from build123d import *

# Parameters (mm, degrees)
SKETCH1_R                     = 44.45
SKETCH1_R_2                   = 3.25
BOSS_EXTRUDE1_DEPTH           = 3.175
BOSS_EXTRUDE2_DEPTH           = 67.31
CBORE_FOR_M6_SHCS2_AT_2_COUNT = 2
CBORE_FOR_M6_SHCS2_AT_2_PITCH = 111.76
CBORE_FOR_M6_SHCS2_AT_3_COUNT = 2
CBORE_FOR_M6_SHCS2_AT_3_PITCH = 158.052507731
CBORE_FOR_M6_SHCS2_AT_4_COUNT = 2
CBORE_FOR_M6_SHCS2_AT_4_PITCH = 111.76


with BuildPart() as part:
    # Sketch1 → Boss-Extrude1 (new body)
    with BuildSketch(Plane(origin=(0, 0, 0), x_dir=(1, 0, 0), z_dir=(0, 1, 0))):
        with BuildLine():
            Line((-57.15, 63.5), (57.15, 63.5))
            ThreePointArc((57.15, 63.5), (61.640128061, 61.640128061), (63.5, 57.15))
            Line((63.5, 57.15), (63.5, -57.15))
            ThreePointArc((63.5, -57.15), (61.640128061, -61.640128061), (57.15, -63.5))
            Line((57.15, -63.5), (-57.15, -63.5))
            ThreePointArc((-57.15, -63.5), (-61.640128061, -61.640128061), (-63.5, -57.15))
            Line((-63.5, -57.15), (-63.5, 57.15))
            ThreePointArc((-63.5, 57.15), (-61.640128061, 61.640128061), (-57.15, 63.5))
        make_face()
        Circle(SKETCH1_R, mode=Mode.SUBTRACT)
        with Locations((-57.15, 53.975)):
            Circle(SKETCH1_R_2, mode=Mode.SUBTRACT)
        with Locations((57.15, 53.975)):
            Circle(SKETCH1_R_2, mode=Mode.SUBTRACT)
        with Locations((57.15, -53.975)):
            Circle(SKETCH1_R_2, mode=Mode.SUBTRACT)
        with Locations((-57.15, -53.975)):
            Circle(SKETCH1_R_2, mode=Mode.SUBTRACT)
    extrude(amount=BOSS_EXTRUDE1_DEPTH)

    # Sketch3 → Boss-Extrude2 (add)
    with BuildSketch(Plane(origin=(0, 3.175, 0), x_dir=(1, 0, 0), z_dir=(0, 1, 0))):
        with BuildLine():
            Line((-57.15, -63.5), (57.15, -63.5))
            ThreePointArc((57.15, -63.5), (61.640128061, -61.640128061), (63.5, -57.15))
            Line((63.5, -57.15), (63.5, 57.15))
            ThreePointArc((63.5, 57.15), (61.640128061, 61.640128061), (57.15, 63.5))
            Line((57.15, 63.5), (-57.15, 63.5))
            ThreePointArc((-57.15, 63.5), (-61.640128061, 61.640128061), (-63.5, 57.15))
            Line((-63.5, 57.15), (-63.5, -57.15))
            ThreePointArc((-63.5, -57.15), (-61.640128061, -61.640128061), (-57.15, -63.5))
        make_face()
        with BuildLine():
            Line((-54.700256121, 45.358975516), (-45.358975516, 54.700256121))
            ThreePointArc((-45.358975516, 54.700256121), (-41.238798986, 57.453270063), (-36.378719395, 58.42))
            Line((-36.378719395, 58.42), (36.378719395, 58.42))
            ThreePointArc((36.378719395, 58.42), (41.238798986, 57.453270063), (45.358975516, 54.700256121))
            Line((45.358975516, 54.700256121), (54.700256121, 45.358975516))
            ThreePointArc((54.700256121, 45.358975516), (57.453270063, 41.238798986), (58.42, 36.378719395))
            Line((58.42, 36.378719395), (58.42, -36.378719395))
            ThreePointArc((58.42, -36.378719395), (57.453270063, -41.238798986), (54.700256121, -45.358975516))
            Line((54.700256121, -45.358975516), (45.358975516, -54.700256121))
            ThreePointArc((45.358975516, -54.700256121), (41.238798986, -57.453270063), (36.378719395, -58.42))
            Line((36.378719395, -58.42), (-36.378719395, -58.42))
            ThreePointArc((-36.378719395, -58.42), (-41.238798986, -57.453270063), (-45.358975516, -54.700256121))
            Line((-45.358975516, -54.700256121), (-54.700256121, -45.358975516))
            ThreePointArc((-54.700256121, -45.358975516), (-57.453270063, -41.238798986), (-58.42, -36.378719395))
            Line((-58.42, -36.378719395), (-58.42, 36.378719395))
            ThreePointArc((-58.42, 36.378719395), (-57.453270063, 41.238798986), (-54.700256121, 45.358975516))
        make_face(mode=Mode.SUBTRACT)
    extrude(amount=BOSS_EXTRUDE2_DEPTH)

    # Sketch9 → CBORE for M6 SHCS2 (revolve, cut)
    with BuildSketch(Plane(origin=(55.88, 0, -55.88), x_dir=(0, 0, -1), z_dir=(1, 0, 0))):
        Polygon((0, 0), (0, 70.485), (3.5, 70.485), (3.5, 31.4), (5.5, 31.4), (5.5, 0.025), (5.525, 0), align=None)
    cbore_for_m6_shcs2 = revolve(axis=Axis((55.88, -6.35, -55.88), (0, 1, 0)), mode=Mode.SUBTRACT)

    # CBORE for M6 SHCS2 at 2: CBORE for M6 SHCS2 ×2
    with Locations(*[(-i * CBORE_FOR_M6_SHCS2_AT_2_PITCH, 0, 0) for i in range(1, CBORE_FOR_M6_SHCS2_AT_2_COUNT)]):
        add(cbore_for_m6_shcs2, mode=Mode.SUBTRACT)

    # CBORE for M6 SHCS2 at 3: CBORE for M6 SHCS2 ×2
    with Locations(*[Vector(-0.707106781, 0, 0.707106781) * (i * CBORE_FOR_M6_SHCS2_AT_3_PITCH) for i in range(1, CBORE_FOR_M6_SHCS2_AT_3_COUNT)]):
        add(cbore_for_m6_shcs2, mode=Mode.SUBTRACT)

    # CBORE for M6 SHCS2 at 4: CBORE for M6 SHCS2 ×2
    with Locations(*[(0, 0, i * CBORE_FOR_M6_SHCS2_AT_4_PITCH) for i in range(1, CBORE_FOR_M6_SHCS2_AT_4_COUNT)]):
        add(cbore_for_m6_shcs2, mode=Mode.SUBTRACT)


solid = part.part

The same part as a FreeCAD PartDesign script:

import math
import FreeCAD as App
import Part
import Sketcher

V = App.Vector
Q = App.Units.Quantity

doc = App.newDocument("Part")
body = doc.addObject("PartDesign::Body", "Body")

# Sketch on XZ plane
sketch1 = body.newObject("Sketcher::SketchObject", "Sketch")
sketch1.AttachmentSupport = (doc.getObject("XZ_Plane"), [""])
sketch1.MapMode = "FlatFace"
sketch1.addGeometry([
    Part.LineSegment(V(57.15, -63.5, 0), V(-57.15, -63.5, 0)),  # 0
    Part.ArcOfCircle(Part.Circle(V(-57.15, -57.15, 0), V(0, 0, 1), 6.35), math.radians(180), math.radians(270)),  # 1
    Part.LineSegment(V(-63.5, -57.15, 0), V(-63.5, 57.15, 0)),  # 2
    Part.ArcOfCircle(Part.Circle(V(-57.15, 57.15, 0), V(0, 0, 1), 6.35), math.radians(90), math.radians(180)),  # 3
    Part.LineSegment(V(-57.15, 63.5, 0), V(57.15, 63.5, 0)),  # 4
    Part.ArcOfCircle(Part.Circle(V(57.15, 57.15, 0), V(0, 0, 1), 6.35), math.radians(0), math.radians(90)),  # 5
    Part.LineSegment(V(63.5, 57.15, 0), V(63.5, -57.15, 0)),  # 6
    Part.ArcOfCircle(Part.Circle(V(57.15, -57.15, 0), V(0, 0, 1), 6.35), math.radians(-90), math.radians(0)),  # 7
    Part.Circle(V(57.15, 53.975, 0), V(0, 0, 1), 3.25),  # 8
    Part.Circle(V(-57.15, 53.975, 0), V(0, 0, 1), 3.25),  # 9
    Part.Circle(V(57.15, -53.975, 0), V(0, 0, 1), 3.25),  # 10
    Part.Circle(V(0, 0, 0), V(0, 0, 1), 44.45),  # 11
    Part.Circle(V(-57.15, -53.975, 0), V(0, 0, 1), 3.25),  # 12
], False)
sketch1.addConstraint([
    Sketcher.Constraint("Tangent", 0, 2, 1, 2),
    Sketcher.Constraint("Tangent", 1, 1, 2, 1),
    Sketcher.Constraint("Tangent", 2, 2, 3, 2),
    Sketcher.Constraint("Tangent", 3, 1, 4, 1),
    Sketcher.Constraint("Tangent", 4, 2, 5, 2),
    Sketcher.Constraint("Tangent", 5, 1, 6, 1),
    Sketcher.Constraint("Tangent", 6, 2, 7, 2),
    Sketcher.Constraint("Tangent", 7, 1, 0, 1),
    Sketcher.Constraint("Horizontal", 0),
    Sketcher.Constraint("Vertical", 2),
    Sketcher.Constraint("Horizontal", 4),
    Sketcher.Constraint("Vertical", 6),
    Sketcher.Constraint("Coincident", 11, 3, -1, 1),
    Sketcher.Constraint("Equal", 1, 3),
    Sketcher.Constraint("Equal", 3, 5),
    Sketcher.Constraint("Equal", 5, 7),
    Sketcher.Constraint("Equal", 8, 9),
    Sketcher.Constraint("Equal", 9, 10),
    Sketcher.Constraint("Equal", 10, 12),
    Sketcher.Constraint("Symmetric", 1, 3, 5, 3, -1, 1),
    Sketcher.Constraint("Symmetric", 9, 3, 10, 3, -1, 1),
    Sketcher.Constraint("Symmetric", 8, 3, 12, 3, -1, 1),
    Sketcher.Constraint("Symmetric", 8, 3, 9, 3, -2),
    Sketcher.Constraint("Vertical", 7, 3, 8, 3),
    Sketcher.Constraint("Equal", 4, 2),
    Sketcher.Constraint("Diameter", 11, Q("3.5 in")),
    Sketcher.Constraint("Radius", 1, Q("0.25 in")),
    Sketcher.Constraint("DistanceX", 0, 2, 0, 1, Q("4.5 in")),
    Sketcher.Constraint("Diameter", 8, Q("6.5 mm")),
    Sketcher.Constraint("DistanceY", 10, 3, 8, 3, Q("4.25 in")),
])
pad1 = body.newObject("PartDesign::Pad", "Pad")
pad1.Profile = sketch1
pad1.Length = Q("0.125 in")
pad1.Reversed = True

# Sketch on XZ plane
sketch2 = body.newObject("Sketcher::SketchObject", "Sketch001")
sketch2.AttachmentSupport = (doc.getObject("XZ_Plane"), [""])
sketch2.MapMode = "FlatFace"
sketch2.AttachmentOffset = App.Placement(V(0, 0, -0.125 * 25.4), App.Rotation())
sketch2.addGeometry([
    Part.LineSegment(V(-57.15, 63.5, 0), V(57.15, 63.5, 0)),  # 0
    Part.ArcOfCircle(Part.Circle(V(57.15, 57.15, 0), V(0, 0, 1), 6.35), math.radians(0), math.radians(90)),  # 1
    Part.LineSegment(V(63.5, 57.15, 0), V(63.5, -57.15, 0)),  # 2
    Part.ArcOfCircle(Part.Circle(V(57.15, -57.15, 0), V(0, 0, 1), 6.35), math.radians(-90), math.radians(0)),  # 3
    Part.LineSegment(V(57.15, -63.5, 0), V(-57.15, -63.5, 0)),  # 4
    Part.ArcOfCircle(Part.Circle(V(-57.15, -57.15, 0), V(0, 0, 1), 6.35), math.radians(180), math.radians(270)),  # 5
    Part.LineSegment(V(-63.5, -57.15, 0), V(-63.5, 57.15, 0)),  # 6
    Part.ArcOfCircle(Part.Circle(V(-57.15, 57.15, 0), V(0, 0, 1), 6.35), math.radians(90), math.radians(180)),  # 7
    Part.ArcOfCircle(Part.Circle(V(-45.72, -36.378719, 0), V(0, 0, 1), 12.7), math.radians(180), math.radians(225)),  # 8
    Part.LineSegment(V(-54.700256, -45.358976, 0), V(-45.358976, -54.700256, 0)),  # 9
    Part.ArcOfCircle(Part.Circle(V(-36.378719, -45.72, 0), V(0, 0, 1), 12.7), math.radians(-135), math.radians(-90)),  # 10
    Part.LineSegment(V(-36.378719, -58.42, 0), V(36.378719, -58.42, 0)),  # 11
    Part.ArcOfCircle(Part.Circle(V(36.378719, -45.72, 0), V(0, 0, 1), 12.7), math.radians(-90), math.radians(-45)),  # 12
    Part.LineSegment(V(45.358976, -54.700256, 0), V(54.700256, -45.358976, 0)),  # 13
    Part.ArcOfCircle(Part.Circle(V(45.72, -36.378719, 0), V(0, 0, 1), 12.7), math.radians(-45), math.radians(0)),  # 14
    Part.LineSegment(V(58.42, -36.378719, 0), V(58.42, 36.378719, 0)),  # 15
    Part.ArcOfCircle(Part.Circle(V(45.72, 36.378719, 0), V(0, 0, 1), 12.7), math.radians(0), math.radians(45)),  # 16
    Part.LineSegment(V(54.700256, 45.358976, 0), V(45.358976, 54.700256, 0)),  # 17
    Part.ArcOfCircle(Part.Circle(V(36.378719, 45.72, 0), V(0, 0, 1), 12.7), math.radians(45), math.radians(90)),  # 18
    Part.LineSegment(V(36.378719, 58.42, 0), V(-36.378719, 58.42, 0)),  # 19
    Part.ArcOfCircle(Part.Circle(V(-36.378719, 45.72, 0), V(0, 0, 1), 12.7), math.radians(90), math.radians(135)),  # 20
    Part.LineSegment(V(-45.358976, 54.700256, 0), V(-54.700256, 45.358976, 0)),  # 21
    Part.ArcOfCircle(Part.Circle(V(-45.72, 36.378719, 0), V(0, 0, 1), 12.7), math.radians(135), math.radians(180)),  # 22
    Part.LineSegment(V(-58.42, 36.378719, 0), V(-58.42, -36.378719, 0)),  # 23
], False)
sketch2.addConstraint([
    Sketcher.Constraint("Tangent", 0, 2, 1, 2),
    Sketcher.Constraint("Tangent", 1, 1, 2, 1),
    Sketcher.Constraint("Tangent", 2, 2, 3, 2),
    Sketcher.Constraint("Tangent", 3, 1, 4, 1),
    Sketcher.Constraint("Tangent", 4, 2, 5, 2),
    Sketcher.Constraint("Tangent", 5, 1, 6, 1),
    Sketcher.Constraint("Tangent", 6, 2, 7, 2),
    Sketcher.Constraint("Tangent", 7, 1, 0, 1),
    Sketcher.Constraint("Tangent", 8, 2, 9, 1),
    Sketcher.Constraint("Tangent", 9, 2, 10, 1),
    Sketcher.Constraint("Tangent", 10, 2, 11, 1),
    Sketcher.Constraint("Tangent", 11, 2, 12, 1),
    Sketcher.Constraint("Tangent", 12, 2, 13, 1),
    Sketcher.Constraint("Tangent", 13, 2, 14, 1),
    Sketcher.Constraint("Tangent", 14, 2, 15, 1),
    Sketcher.Constraint("Tangent", 15, 2, 16, 1),
    Sketcher.Constraint("Tangent", 16, 2, 17, 1),
    Sketcher.Constraint("Tangent", 17, 2, 18, 1),
    Sketcher.Constraint("Tangent", 18, 2, 19, 1),
    Sketcher.Constraint("Tangent", 19, 2, 20, 1),
    Sketcher.Constraint("Tangent", 20, 2, 21, 1),
    Sketcher.Constraint("Tangent", 21, 2, 22, 1),
    Sketcher.Constraint("Tangent", 22, 2, 23, 1),
    Sketcher.Constraint("Tangent", 23, 2, 8, 1),
    Sketcher.Constraint("Horizontal", 0),
    Sketcher.Constraint("Vertical", 2),
    Sketcher.Constraint("Horizontal", 4),
    Sketcher.Constraint("Vertical", 6),
    Sketcher.Constraint("Horizontal", 11),
    Sketcher.Constraint("Vertical", 15),
    Sketcher.Constraint("Horizontal", 19),
    Sketcher.Constraint("Vertical", 23),
    Sketcher.Constraint("Equal", 1, 3),
    Sketcher.Constraint("Equal", 3, 5),
    Sketcher.Constraint("Equal", 5, 7),
    Sketcher.Constraint("Equal", 8, 10),
    Sketcher.Constraint("Equal", 10, 12),
    Sketcher.Constraint("Equal", 12, 14),
    Sketcher.Constraint("Equal", 14, 16),
    Sketcher.Constraint("Equal", 16, 18),
    Sketcher.Constraint("Equal", 18, 20),
    Sketcher.Constraint("Equal", 20, 22),
    Sketcher.Constraint("Symmetric", 1, 3, 5, 3, -1, 1),
    Sketcher.Constraint("Symmetric", 8, 3, 16, 3, -1, 1),
    Sketcher.Constraint("Symmetric", 10, 3, 18, 3, -1, 1),
    Sketcher.Constraint("Symmetric", 12, 2, 20, 2, -1, 1),
    Sketcher.Constraint("Symmetric", 9, 2, 12, 2, -2),
    Sketcher.Constraint("Perpendicular", 9, 13),
    Sketcher.Constraint("Equal", 4, 2),
    Sketcher.Constraint("Equal", 19, 15),
    Sketcher.Constraint("Radius", 8, Q("0.5 in")),
    Sketcher.Constraint("Radius", 1, Q("0.25 in")),
    Sketcher.Constraint("DistanceX", 0, 1, 0, 2, Q("4.5 in")),
    Sketcher.Constraint("DistanceX", 8, 3, -1, 1, Q("1.8 in")),
    Sketcher.Constraint("DistanceX", 11, 1, 11, 2, Q("72.757439 mm")),
])
pad2 = body.newObject("PartDesign::Pad", "Pad001")
pad2.Profile = sketch2
pad2.Length = Q("2.65 in")
pad2.Reversed = True

# Sketch on YZ plane
sketch3 = body.newObject("Sketcher::SketchObject", "Sketch002")
sketch3.AttachmentSupport = (doc.getObject("YZ_Plane"), [""])
sketch3.MapMode = "FlatFace"
sketch3.AttachmentOffset = App.Placement(V(0, 0, 2.2 * 25.4), App.Rotation())
sketch3.addGeometry([
    Part.LineSegment(V(70.485, -55.88, 0), V(0, -55.88, 0)),  # 0
    Part.LineSegment(V(0, -55.88, 0), V(0, -61.405, 0)),  # 1
    Part.LineSegment(V(0, -61.405, 0), V(0.025, -61.38, 0)),  # 2
    Part.LineSegment(V(0.025, -61.38, 0), V(31.4, -61.38, 0)),  # 3
    Part.LineSegment(V(31.4, -61.38, 0), V(31.4, -59.38, 0)),  # 4
    Part.LineSegment(V(31.4, -59.38, 0), V(70.485, -59.38, 0)),  # 5
    Part.LineSegment(V(70.485, -59.38, 0), V(70.485, -55.88, 0)),  # 6
], False)
sketch3.addGeometry(Part.LineSegment(V(0, -55.88, 0), V(70.485, -55.88, 0)), True)  # axis
sketch3.addConstraint([
    Sketcher.Constraint("Coincident", 0, 2, 1, 1),
    Sketcher.Constraint("Coincident", 1, 2, 2, 1),
    Sketcher.Constraint("Coincident", 2, 2, 3, 1),
    Sketcher.Constraint("Coincident", 3, 2, 4, 1),
    Sketcher.Constraint("Coincident", 4, 2, 5, 1),
    Sketcher.Constraint("Coincident", 5, 2, 6, 1),
    Sketcher.Constraint("Coincident", 6, 2, 0, 1),
    Sketcher.Constraint("Horizontal", 0),
    Sketcher.Constraint("Vertical", 1),
    Sketcher.Constraint("Horizontal", 3),
    Sketcher.Constraint("Vertical", 4),
    Sketcher.Constraint("Horizontal", 5),
    Sketcher.Constraint("Vertical", 6),
    Sketcher.Constraint("Horizontal", 7),
    Sketcher.Constraint("Coincident", 7, 1, 0, 2),
    Sketcher.Constraint("PointOnObject", 0, 2, -2),
    Sketcher.Constraint("Vertical", 5, 2, 7, 2),
    Sketcher.Constraint("Angle", 2, Q("45 deg")),
    Sketcher.Constraint("DistanceY", 0, 2, -1, 1, Q("2.2 in")),
    Sketcher.Constraint("DistanceX", 0, 2, 0, 1, Q("2.775 in")),
    Sketcher.Constraint("DistanceX", 3, 1, 3, 2, Q("31.375 mm")),
    Sketcher.Constraint("DistanceX", 5, 1, 5, 2, Q("39.085 mm")),
    Sketcher.Constraint("DistanceY", 1, 2, 1, 1, Q("5.525 mm")),
    Sketcher.Constraint("DistanceY", 4, 1, 4, 2, Q("2 mm")),
])
groove = body.newObject("PartDesign::Groove", "Groove")
groove.Profile = sketch3
groove.ReferenceAxis = (sketch3, ["Axis0"])
groove.Angle = 360
doc.recompute()

linearpattern = body.newObject("PartDesign::LinearPattern", "LinearPattern")
linearpattern.Originals = [groove]
linearpattern.Direction = (doc.getObject("X_Axis"), [""])
linearpattern.Mode = "offset"
linearpattern.Offset = Q("4.4 in")
linearpattern.Occurrences = 2
linearpattern.Reversed = True
body.Tip = linearpattern
doc.recompute()

datumline = body.newObject("PartDesign::Line", "DatumLine")
datumline.Placement = App.Placement(V(0, 0, 0), App.Rotation(V(0, 0, 1), V(-0.707106781, 0, 0.707106781)))
linearpattern2 = body.newObject("PartDesign::LinearPattern", "LinearPattern001")
linearpattern2.Originals = [groove]
linearpattern2.Direction = (datumline, [""])
linearpattern2.Mode = "offset"
linearpattern2.Offset = 158.052508
linearpattern2.Occurrences = 2
body.Tip = linearpattern2
doc.recompute()

linearpattern3 = body.newObject("PartDesign::LinearPattern", "LinearPattern002")
linearpattern3.Originals = [groove]
linearpattern3.Direction = (doc.getObject("Z_Axis"), [""])
linearpattern3.Mode = "offset"
linearpattern3.Offset = Q("4.4 in")
linearpattern3.Occurrences = 2
body.Tip = linearpattern3

doc.recompute()
